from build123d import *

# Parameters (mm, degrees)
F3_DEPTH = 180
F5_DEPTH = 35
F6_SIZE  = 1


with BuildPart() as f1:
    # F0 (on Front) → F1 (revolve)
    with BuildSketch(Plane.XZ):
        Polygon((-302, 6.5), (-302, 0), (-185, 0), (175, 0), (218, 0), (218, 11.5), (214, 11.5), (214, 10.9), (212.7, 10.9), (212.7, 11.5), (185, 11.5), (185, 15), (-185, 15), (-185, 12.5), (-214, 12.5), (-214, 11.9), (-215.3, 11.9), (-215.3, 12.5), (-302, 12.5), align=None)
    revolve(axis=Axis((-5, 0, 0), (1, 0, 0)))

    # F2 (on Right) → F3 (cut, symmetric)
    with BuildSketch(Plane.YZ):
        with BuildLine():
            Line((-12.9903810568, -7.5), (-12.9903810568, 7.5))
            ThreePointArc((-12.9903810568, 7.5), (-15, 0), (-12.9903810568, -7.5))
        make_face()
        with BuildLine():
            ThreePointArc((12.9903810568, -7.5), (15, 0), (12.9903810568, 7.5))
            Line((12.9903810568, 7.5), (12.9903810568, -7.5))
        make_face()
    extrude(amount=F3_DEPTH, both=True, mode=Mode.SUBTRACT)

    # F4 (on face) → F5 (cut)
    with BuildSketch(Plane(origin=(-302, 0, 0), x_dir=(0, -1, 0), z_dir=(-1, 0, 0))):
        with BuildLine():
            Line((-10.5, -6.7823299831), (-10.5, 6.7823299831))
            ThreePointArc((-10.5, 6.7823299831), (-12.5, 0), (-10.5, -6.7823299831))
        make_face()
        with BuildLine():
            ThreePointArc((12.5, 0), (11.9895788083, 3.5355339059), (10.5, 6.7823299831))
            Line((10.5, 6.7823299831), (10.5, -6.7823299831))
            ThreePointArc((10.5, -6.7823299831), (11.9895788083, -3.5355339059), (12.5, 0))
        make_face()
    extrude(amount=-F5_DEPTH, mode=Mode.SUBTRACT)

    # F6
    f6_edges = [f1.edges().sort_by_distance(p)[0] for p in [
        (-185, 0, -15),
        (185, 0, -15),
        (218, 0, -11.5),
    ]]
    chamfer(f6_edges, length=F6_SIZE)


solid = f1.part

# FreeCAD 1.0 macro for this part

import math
import FreeCAD as App
import Part
import Sketcher
from FreeCAD import Vector
Q = App.Units.Quantity


def edges_at(feature, points):
    """Names of the edges that pass closest to the given points."""
    edges = feature.Shape.Edges
    near = lambda p: min(range(len(edges)), key=lambda i: edges[i].distToShape(Part.Vertex(*p))[0])
    return sorted({f"Edge{near(p) + 1}" for p in points})

doc = App.newDocument("Part")
params = doc.addObject("Spreadsheet::Sheet", "Params")
for row, (alias, value) in enumerate([
    ("sketch1_width", "520 mm"),
    ("sketch1_width2", "4 mm"),
    ("sketch1_width3", "370 mm"),
    ("sketch1_width4", "29 mm"),
    ("sketch1_width5", "1.3 mm"),
    ("revolution_angle", "360 deg"),
    ("sketch2_radius", "15 mm"),
    ("sketch2_height", "15 mm"),
    ("pocket1_length", "360 mm"),
    ("sketch3_radius", "12.5 mm"),
    ("pocket2_length", "35 mm"),
    ("chamfer_size", "1 mm"),
], start=1):
    params.set(f"A{row}", alias)
    params.set(f"B{row}", "=" + value)
    params.setAlias(f"B{row}", alias)

body = doc.addObject("PartDesign::Body", "Body")

# Sketch on XZ plane
sketch1 = body.newObject("Sketcher::SketchObject", "Sketch")
sketch1.AttachmentSupport = (doc.getObject("XZ_Plane"), [""])
sketch1.MapMode = "FlatFace"
sketch1.addGeometry(Part.LineSegment(Vector(-302, 0, 0), Vector(218, 0, 0)), False)
sketch1.addGeometry(Part.LineSegment(Vector(218, 0, 0), Vector(218, 11.5, 0)), False)
sketch1.addGeometry(Part.LineSegment(Vector(218, 11.5, 0), Vector(214, 11.5, 0)), False)
sketch1.addGeometry(Part.LineSegment(Vector(214, 11.5, 0), Vector(214, 10.9, 0)), False)
sketch1.addGeometry(Part.LineSegment(Vector(214, 10.9, 0), Vector(212.7, 10.9, 0)), False)
sketch1.addGeometry(Part.LineSegment(Vector(212.7, 10.9, 0), Vector(212.7, 11.5, 0)), False)
sketch1.addGeometry(Part.LineSegment(Vector(212.7, 11.5, 0), Vector(185, 11.5, 0)), False)
sketch1.addGeometry(Part.LineSegment(Vector(185, 11.5, 0), Vector(185, 15, 0)), False)
sketch1.addGeometry(Part.LineSegment(Vector(185, 15, 0), Vector(-185, 15, 0)), False)
sketch1.addGeometry(Part.LineSegment(Vector(-185, 15, 0), Vector(-185, 12.5, 0)), False)
sketch1.addGeometry(Part.LineSegment(Vector(-185, 12.5, 0), Vector(-214, 12.5, 0)), False)
sketch1.addGeometry(Part.LineSegment(Vector(-214, 12.5, 0), Vector(-214, 11.9, 0)), False)
sketch1.addGeometry(Part.LineSegment(Vector(-214, 11.9, 0), Vector(-215.3, 11.9, 0)), False)
sketch1.addGeometry(Part.LineSegment(Vector(-215.3, 11.9, 0), Vector(-215.3, 12.5, 0)), False)
sketch1.addGeometry(Part.LineSegment(Vector(-215.3, 12.5, 0), Vector(-302, 12.5, 0)), False)
sketch1.addGeometry(Part.LineSegment(Vector(-302, 12.5, 0), Vector(-302, 0, 0)), False)
sketch1.addConstraint(Sketcher.Constraint("Coincident", 0, 2, 1, 1))
sketch1.addConstraint(Sketcher.Constraint("Coincident", 1, 2, 2, 1))
sketch1.addConstraint(Sketcher.Constraint("Coincident", 2, 2, 3, 1))
sketch1.addConstraint(Sketcher.Constraint("Coincident", 3, 2, 4, 1))
sketch1.addConstraint(Sketcher.Constraint("Coincident", 4, 2, 5, 1))
sketch1.addConstraint(Sketcher.Constraint("Coincident", 5, 2, 6, 1))
sketch1.addConstraint(Sketcher.Constraint("Coincident", 6, 2, 7, 1))
sketch1.addConstraint(Sketcher.Constraint("Coincident", 7, 2, 8, 1))
sketch1.addConstraint(Sketcher.Constraint("Coincident", 8, 2, 9, 1))
sketch1.addConstraint(Sketcher.Constraint("Coincident", 9, 2, 10, 1))
sketch1.addConstraint(Sketcher.Constraint("Coincident", 10, 2, 11, 1))
sketch1.addConstraint(Sketcher.Constraint("Coincident", 11, 2, 12, 1))
sketch1.addConstraint(Sketcher.Constraint("Coincident", 12, 2, 13, 1))
sketch1.addConstraint(Sketcher.Constraint("Coincident", 13, 2, 14, 1))
sketch1.addConstraint(Sketcher.Constraint("Coincident", 14, 2, 15, 1))
sketch1.addConstraint(Sketcher.Constraint("Coincident", 15, 2, 0, 1))
sketch1.addConstraint(Sketcher.Constraint("Horizontal", 0))
sketch1.addConstraint(Sketcher.Constraint("Vertical", 1))
sketch1.addConstraint(Sketcher.Constraint("Horizontal", 2))
sketch1.addConstraint(Sketcher.Constraint("Vertical", 3))
sketch1.addConstraint(Sketcher.Constraint("Horizontal", 4))
sketch1.addConstraint(Sketcher.Constraint("Vertical", 5))
sketch1.addConstraint(Sketcher.Constraint("Horizontal", 6))
sketch1.addConstraint(Sketcher.Constraint("Vertical", 7))
sketch1.addConstraint(Sketcher.Constraint("Horizontal", 8))
sketch1.addConstraint(Sketcher.Constraint("Vertical", 9))
sketch1.addConstraint(Sketcher.Constraint("Horizontal", 10))
sketch1.addConstraint(Sketcher.Constraint("Vertical", 11))
sketch1.addConstraint(Sketcher.Constraint("Horizontal", 12))
sketch1.addConstraint(Sketcher.Constraint("Vertical", 13))
sketch1.addConstraint(Sketcher.Constraint("Horizontal", 14))
sketch1.addConstraint(Sketcher.Constraint("Vertical", 15))
sketch1.addConstraint(Sketcher.Constraint("PointOnObject", 0, 2, -1))
sketch1.addConstraint(Sketcher.Constraint("Horizontal", 2, 2, 5, 2))
sketch1.addConstraint(Sketcher.Constraint("Horizontal", 10, 2, 13, 2))
sketch1.addConstraint(Sketcher.Constraint("Equal", 4, 12))
sketch1.addConstraint(Sketcher.Constraint("Equal", 5, 11))
sketch1.addConstraint(Sketcher.Constraint("DistanceX", 0, 1, 0, 2, Q("520 mm")))
sketch1.addConstraint(Sketcher.Constraint("DistanceX", 2, 2, 2, 1, Q("4 mm")))
sketch1.addConstraint(Sketcher.Constraint("DistanceX", 8, 2, 8, 1, Q("370 mm")))
sketch1.addConstraint(Sketcher.Constraint("DistanceX", 10, 2, 10, 1, Q("29 mm")))
sketch1.addConstraint(Sketcher.Constraint("DistanceX", 4, 2, 4, 1, Q("1.3 mm")))
sketch1.addConstraint(Sketcher.Constraint("DistanceX", 6, 2, 6, 1, Q("27.7 mm")))
sketch1.addConstraint(Sketcher.Constraint("DistanceY", 1, 1, 1, 2, Q("11.5 mm")))
sketch1.addConstraint(Sketcher.Constraint("DistanceY", 3, 2, 3, 1, Q("0.6 mm")))
sketch1.addConstraint(Sketcher.Constraint("DistanceY", 7, 1, 7, 2, Q("3.5 mm")))
sketch1.addConstraint(Sketcher.Constraint("DistanceY", 9, 2, 9, 1, Q("2.5 mm")))
sketch1.addConstraint(Sketcher.Constraint("DistanceX", -1, 1, 0, 2, Q("218 mm")))
sketch1.setExpression("Constraints[37]", "Params.sketch1_width")
sketch1.setExpression("Constraints[38]", "Params.sketch1_width2")
sketch1.setExpression("Constraints[39]", "Params.sketch1_width3")
sketch1.setExpression("Constraints[40]", "Params.sketch1_width4")
sketch1.setExpression("Constraints[41]", "Params.sketch1_width5")
revolution = body.newObject("PartDesign::Revolution", "Revolution")
revolution.Profile = sketch1
revolution.ReferenceAxis = (sketch1, ["H_Axis"])
revolution.setExpression("Angle", "Params.revolution_angle")

# Sketch on YZ plane
sketch2 = body.newObject("Sketcher::SketchObject", "Sketch001")
sketch2.AttachmentSupport = (doc.getObject("YZ_Plane"), [""])
sketch2.MapMode = "FlatFace"
sketch2.addGeometry(Part.LineSegment(Vector(-13, -8, 0), Vector(-13, 8, 0)), False)
sketch2.addGeometry(Part.ArcOfCircle(Part.Circle(Vector(0, 0, 0), Vector(0, 0, 1), 15), math.radians(150), math.radians(210)), False)
sketch2.addGeometry(Part.ArcOfCircle(Part.Circle(Vector(0, 0, 0), Vector(0, 0, 1), 15), math.radians(-30), math.radians(30)), False)
sketch2.addGeometry(Part.LineSegment(Vector(13, 8, 0), Vector(13, -8, 0)), False)
sketch2.addConstraint(Sketcher.Constraint("Coincident", 0, 1, 1, 2))
sketch2.addConstraint(Sketcher.Constraint("Coincident", 1, 1, 0, 2))
sketch2.addConstraint(Sketcher.Constraint("Coincident", 2, 1, 3, 2))
sketch2.addConstraint(Sketcher.Constraint("Coincident", 3, 1, 2, 2))
sketch2.addConstraint(Sketcher.Constraint("Vertical", 0))
sketch2.addConstraint(Sketcher.Constraint("Vertical", 3))
sketch2.addConstraint(Sketcher.Constraint("Coincident", 1, 3, -1, 1))
sketch2.addConstraint(Sketcher.Constraint("Coincident", 2, 3, -1, 1))
sketch2.addConstraint(Sketcher.Constraint("Equal", 1, 2))
sketch2.addConstraint(Sketcher.Constraint("Horizontal", 0, 1, 2, 1))
sketch2.addConstraint(Sketcher.Constraint("Radius", 1, Q("15 mm")))
sketch2.addConstraint(Sketcher.Constraint("DistanceY", 0, 1, 0, 2, Q("15 mm")))
sketch2.setExpression("Constraints[10]", "Params.sketch2_radius")
sketch2.setExpression("Constraints[11]", "Params.sketch2_height")
pocket1 = body.newObject("PartDesign::Pocket", "Pocket")
pocket1.Profile = sketch2
pocket1.setExpression("Length", "Params.pocket1_length")
pocket1.Midplane = True

# Sketch on YZ plane
sketch3 = body.newObject("Sketcher::SketchObject", "Sketch002")
sketch3.AttachmentSupport = (doc.getObject("YZ_Plane"), [""])
sketch3.MapMode = "FlatFace"
sketch3.AttachmentOffset = App.Placement(Vector(0, 0, -302), App.Rotation())
sketch3.addGeometry(Part.LineSegment(Vector(10, -7, 0), Vector(10, 7, 0)), False)
sketch3.addGeometry(Part.ArcOfCircle(Part.Circle(Vector(0, 0, 0), Vector(0, 0, 1), 12), math.radians(-33), math.radians(33)), False)
sketch3.addGeometry(Part.ArcOfCircle(Part.Circle(Vector(0, 0, 0), Vector(0, 0, 1), 12), math.radians(147), math.radians(180)), False)
sketch3.addGeometry(Part.LineSegment(Vector(-10, 7, 0), Vector(-10, -7, 0)), False)
sketch3.addGeometry(Part.ArcOfCircle(Part.Circle(Vector(0, 0, 0), Vector(0, 0, 1), 12), math.radians(180), math.radians(213)), False)
sketch3.addConstraint(Sketcher.Constraint("Coincident", 0, 1, 1, 1))
sketch3.addConstraint(Sketcher.Constraint("Coincident", 1, 2, 0, 2))
sketch3.addConstraint(Sketcher.Constraint("Coincident", 2, 1, 3, 1))
sketch3.addConstraint(Sketcher.Constraint("Coincident", 3, 2, 4, 2))
sketch3.addConstraint(Sketcher.Constraint("Tangent", 4, 1, 2, 2))
sketch3.addConstraint(Sketcher.Constraint("Vertical", 0))
sketch3.addConstraint(Sketcher.Constraint("Vertical", 3))
sketch3.addConstraint(Sketcher.Constraint("Coincident", 1, 3, -1, 1))
sketch3.addConstraint(Sketcher.Constraint("Coincident", 2, 3, -1, 1))
sketch3.addConstraint(Sketcher.Constraint("Equal", 1, 2))
sketch3.addConstraint(Sketcher.Constraint("Equal", 2, 4))
sketch3.addConstraint(Sketcher.Constraint("PointOnObject", 4, 1, -1))
sketch3.addConstraint(Sketcher.Constraint("Horizontal", 1, 2, 2, 1))
sketch3.addConstraint(Sketcher.Constraint("Radius", 1, Q("12.5 mm")))
sketch3.addConstraint(Sketcher.Constraint("DistanceX", 2, 1, 1, 2, Q("21 mm")))
sketch3.setExpression("Constraints[13]", "Params.sketch3_radius")
pocket2 = body.newObject("PartDesign::Pocket", "Pocket001")
pocket2.Profile = sketch3
pocket2.setExpression("Length", "Params.pocket2_length")
pocket2.Reversed = True
doc.recompute()

chamfer = body.newObject("PartDesign::Chamfer", "Chamfer")
chamfer.Base = (pocket2, edges_at(pocket2, [(-185, 0, -15), (185, 0, -15), (218, 0, -11.5)]))
chamfer.setExpression("Size", "Params.chamfer_size")

doc.recompute()
